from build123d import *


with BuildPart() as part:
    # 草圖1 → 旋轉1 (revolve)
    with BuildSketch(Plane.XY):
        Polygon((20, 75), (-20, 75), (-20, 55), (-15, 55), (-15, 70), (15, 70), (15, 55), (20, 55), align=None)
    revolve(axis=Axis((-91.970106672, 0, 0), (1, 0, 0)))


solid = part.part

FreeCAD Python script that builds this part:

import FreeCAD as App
import Part
import Sketcher
from FreeCAD import Vector
Q = App.Units.Quantity

doc = App.newDocument("Part")
body = doc.addObject("PartDesign::Body", "Body")

sketch1 = doc.addObject("Sketcher::SketchObject", "Sketch")
body.addObject(sketch1)
sketch1.AttachmentSupport = (doc.XY_Plane, [""])
sketch1.MapMode = "FlatFace"
sketch1.addGeometry(Part.LineSegment(Vector(20, 75, 0), Vector(-20, 75, 0)), False)
sketch1.addGeometry(Part.LineSegment(Vector(-20, 75, 0), Vector(-20, 55, 0)), False)
sketch1.addGeometry(Part.LineSegment(Vector(-20, 55, 0), Vector(-15, 55, 0)), False)
sketch1.addGeometry(Part.LineSegment(Vector(-15, 55, 0), Vector(-15, 70, 0)), False)
sketch1.addGeometry(Part.LineSegment(Vector(-15, 70, 0), Vector(15, 70, 0)), False)
sketch1.addGeometry(Part.LineSegment(Vector(15, 70, 0), Vector(15, 55, 0)), False)
sketch1.addGeometry(Part.LineSegment(Vector(15, 55, 0), Vector(20, 55, 0)), False)
sketch1.addGeometry(Part.LineSegment(Vector(20, 55, 0), Vector(20, 75, 0)), False)
sketch1.addConstraint(Sketcher.Constraint("Coincident", 0, 2, 1, 1))
sketch1.addConstraint(Sketcher.Constraint("Coincident", 1, 2, 2, 1))
sketch1.addConstraint(Sketcher.Constraint("Coincident", 2, 2, 3, 1))
sketch1.addConstraint(Sketcher.Constraint("Coincident", 3, 2, 4, 1))
sketch1.addConstraint(Sketcher.Constraint("Coincident", 4, 2, 5, 1))
sketch1.addConstraint(Sketcher.Constraint("Coincident", 5, 2, 6, 1))
sketch1.addConstraint(Sketcher.Constraint("Coincident", 6, 2, 7, 1))
sketch1.addConstraint(Sketcher.Constraint("Coincident", 7, 2, 0, 1))
sketch1.addConstraint(Sketcher.Constraint("Horizontal", 0))
sketch1.addConstraint(Sketcher.Constraint("Vertical", 1))
sketch1.addConstraint(Sketcher.Constraint("Horizontal", 2))
sketch1.addConstraint(Sketcher.Constraint("Vertical", 3))
sketch1.addConstraint(Sketcher.Constraint("Horizontal", 4))
sketch1.addConstraint(Sketcher.Constraint("Vertical", 5))
sketch1.addConstraint(Sketcher.Constraint("Horizontal", 6))
sketch1.addConstraint(Sketcher.Constraint("Vertical", 7))
sketch1.addConstraint(Sketcher.Constraint("Symmetric", 2, 2, 5, 2, -2))
sketch1.addConstraint(Sketcher.Constraint("Equal", 2, 6))
sketch1.addConstraint(Sketcher.Constraint("DistanceX", 0, 2, 0, 1, Q("40 mm")))
sketch1.addConstraint(Sketcher.Constraint("DistanceX", 2, 1, 2, 2, Q("5 mm")))
sketch1.addConstraint(Sketcher.Constraint("DistanceY", 1, 2, 1, 1, Q("20 mm")))
sketch1.addConstraint(Sketcher.Constraint("DistanceY", 3, 1, 3, 2, Q("15 mm")))
sketch1.addConstraint(Sketcher.Constraint("DistanceY", -1, 1, 0, 2, Q("75 mm")))
revolution = doc.addObject("PartDesign::Revolution", "Revolution")
body.addObject(revolution)
revolution.Profile = sketch1
revolution.ReferenceAxis = (sketch1, ["H_Axis"])
revolution.Angle = 360

doc.recompute()
